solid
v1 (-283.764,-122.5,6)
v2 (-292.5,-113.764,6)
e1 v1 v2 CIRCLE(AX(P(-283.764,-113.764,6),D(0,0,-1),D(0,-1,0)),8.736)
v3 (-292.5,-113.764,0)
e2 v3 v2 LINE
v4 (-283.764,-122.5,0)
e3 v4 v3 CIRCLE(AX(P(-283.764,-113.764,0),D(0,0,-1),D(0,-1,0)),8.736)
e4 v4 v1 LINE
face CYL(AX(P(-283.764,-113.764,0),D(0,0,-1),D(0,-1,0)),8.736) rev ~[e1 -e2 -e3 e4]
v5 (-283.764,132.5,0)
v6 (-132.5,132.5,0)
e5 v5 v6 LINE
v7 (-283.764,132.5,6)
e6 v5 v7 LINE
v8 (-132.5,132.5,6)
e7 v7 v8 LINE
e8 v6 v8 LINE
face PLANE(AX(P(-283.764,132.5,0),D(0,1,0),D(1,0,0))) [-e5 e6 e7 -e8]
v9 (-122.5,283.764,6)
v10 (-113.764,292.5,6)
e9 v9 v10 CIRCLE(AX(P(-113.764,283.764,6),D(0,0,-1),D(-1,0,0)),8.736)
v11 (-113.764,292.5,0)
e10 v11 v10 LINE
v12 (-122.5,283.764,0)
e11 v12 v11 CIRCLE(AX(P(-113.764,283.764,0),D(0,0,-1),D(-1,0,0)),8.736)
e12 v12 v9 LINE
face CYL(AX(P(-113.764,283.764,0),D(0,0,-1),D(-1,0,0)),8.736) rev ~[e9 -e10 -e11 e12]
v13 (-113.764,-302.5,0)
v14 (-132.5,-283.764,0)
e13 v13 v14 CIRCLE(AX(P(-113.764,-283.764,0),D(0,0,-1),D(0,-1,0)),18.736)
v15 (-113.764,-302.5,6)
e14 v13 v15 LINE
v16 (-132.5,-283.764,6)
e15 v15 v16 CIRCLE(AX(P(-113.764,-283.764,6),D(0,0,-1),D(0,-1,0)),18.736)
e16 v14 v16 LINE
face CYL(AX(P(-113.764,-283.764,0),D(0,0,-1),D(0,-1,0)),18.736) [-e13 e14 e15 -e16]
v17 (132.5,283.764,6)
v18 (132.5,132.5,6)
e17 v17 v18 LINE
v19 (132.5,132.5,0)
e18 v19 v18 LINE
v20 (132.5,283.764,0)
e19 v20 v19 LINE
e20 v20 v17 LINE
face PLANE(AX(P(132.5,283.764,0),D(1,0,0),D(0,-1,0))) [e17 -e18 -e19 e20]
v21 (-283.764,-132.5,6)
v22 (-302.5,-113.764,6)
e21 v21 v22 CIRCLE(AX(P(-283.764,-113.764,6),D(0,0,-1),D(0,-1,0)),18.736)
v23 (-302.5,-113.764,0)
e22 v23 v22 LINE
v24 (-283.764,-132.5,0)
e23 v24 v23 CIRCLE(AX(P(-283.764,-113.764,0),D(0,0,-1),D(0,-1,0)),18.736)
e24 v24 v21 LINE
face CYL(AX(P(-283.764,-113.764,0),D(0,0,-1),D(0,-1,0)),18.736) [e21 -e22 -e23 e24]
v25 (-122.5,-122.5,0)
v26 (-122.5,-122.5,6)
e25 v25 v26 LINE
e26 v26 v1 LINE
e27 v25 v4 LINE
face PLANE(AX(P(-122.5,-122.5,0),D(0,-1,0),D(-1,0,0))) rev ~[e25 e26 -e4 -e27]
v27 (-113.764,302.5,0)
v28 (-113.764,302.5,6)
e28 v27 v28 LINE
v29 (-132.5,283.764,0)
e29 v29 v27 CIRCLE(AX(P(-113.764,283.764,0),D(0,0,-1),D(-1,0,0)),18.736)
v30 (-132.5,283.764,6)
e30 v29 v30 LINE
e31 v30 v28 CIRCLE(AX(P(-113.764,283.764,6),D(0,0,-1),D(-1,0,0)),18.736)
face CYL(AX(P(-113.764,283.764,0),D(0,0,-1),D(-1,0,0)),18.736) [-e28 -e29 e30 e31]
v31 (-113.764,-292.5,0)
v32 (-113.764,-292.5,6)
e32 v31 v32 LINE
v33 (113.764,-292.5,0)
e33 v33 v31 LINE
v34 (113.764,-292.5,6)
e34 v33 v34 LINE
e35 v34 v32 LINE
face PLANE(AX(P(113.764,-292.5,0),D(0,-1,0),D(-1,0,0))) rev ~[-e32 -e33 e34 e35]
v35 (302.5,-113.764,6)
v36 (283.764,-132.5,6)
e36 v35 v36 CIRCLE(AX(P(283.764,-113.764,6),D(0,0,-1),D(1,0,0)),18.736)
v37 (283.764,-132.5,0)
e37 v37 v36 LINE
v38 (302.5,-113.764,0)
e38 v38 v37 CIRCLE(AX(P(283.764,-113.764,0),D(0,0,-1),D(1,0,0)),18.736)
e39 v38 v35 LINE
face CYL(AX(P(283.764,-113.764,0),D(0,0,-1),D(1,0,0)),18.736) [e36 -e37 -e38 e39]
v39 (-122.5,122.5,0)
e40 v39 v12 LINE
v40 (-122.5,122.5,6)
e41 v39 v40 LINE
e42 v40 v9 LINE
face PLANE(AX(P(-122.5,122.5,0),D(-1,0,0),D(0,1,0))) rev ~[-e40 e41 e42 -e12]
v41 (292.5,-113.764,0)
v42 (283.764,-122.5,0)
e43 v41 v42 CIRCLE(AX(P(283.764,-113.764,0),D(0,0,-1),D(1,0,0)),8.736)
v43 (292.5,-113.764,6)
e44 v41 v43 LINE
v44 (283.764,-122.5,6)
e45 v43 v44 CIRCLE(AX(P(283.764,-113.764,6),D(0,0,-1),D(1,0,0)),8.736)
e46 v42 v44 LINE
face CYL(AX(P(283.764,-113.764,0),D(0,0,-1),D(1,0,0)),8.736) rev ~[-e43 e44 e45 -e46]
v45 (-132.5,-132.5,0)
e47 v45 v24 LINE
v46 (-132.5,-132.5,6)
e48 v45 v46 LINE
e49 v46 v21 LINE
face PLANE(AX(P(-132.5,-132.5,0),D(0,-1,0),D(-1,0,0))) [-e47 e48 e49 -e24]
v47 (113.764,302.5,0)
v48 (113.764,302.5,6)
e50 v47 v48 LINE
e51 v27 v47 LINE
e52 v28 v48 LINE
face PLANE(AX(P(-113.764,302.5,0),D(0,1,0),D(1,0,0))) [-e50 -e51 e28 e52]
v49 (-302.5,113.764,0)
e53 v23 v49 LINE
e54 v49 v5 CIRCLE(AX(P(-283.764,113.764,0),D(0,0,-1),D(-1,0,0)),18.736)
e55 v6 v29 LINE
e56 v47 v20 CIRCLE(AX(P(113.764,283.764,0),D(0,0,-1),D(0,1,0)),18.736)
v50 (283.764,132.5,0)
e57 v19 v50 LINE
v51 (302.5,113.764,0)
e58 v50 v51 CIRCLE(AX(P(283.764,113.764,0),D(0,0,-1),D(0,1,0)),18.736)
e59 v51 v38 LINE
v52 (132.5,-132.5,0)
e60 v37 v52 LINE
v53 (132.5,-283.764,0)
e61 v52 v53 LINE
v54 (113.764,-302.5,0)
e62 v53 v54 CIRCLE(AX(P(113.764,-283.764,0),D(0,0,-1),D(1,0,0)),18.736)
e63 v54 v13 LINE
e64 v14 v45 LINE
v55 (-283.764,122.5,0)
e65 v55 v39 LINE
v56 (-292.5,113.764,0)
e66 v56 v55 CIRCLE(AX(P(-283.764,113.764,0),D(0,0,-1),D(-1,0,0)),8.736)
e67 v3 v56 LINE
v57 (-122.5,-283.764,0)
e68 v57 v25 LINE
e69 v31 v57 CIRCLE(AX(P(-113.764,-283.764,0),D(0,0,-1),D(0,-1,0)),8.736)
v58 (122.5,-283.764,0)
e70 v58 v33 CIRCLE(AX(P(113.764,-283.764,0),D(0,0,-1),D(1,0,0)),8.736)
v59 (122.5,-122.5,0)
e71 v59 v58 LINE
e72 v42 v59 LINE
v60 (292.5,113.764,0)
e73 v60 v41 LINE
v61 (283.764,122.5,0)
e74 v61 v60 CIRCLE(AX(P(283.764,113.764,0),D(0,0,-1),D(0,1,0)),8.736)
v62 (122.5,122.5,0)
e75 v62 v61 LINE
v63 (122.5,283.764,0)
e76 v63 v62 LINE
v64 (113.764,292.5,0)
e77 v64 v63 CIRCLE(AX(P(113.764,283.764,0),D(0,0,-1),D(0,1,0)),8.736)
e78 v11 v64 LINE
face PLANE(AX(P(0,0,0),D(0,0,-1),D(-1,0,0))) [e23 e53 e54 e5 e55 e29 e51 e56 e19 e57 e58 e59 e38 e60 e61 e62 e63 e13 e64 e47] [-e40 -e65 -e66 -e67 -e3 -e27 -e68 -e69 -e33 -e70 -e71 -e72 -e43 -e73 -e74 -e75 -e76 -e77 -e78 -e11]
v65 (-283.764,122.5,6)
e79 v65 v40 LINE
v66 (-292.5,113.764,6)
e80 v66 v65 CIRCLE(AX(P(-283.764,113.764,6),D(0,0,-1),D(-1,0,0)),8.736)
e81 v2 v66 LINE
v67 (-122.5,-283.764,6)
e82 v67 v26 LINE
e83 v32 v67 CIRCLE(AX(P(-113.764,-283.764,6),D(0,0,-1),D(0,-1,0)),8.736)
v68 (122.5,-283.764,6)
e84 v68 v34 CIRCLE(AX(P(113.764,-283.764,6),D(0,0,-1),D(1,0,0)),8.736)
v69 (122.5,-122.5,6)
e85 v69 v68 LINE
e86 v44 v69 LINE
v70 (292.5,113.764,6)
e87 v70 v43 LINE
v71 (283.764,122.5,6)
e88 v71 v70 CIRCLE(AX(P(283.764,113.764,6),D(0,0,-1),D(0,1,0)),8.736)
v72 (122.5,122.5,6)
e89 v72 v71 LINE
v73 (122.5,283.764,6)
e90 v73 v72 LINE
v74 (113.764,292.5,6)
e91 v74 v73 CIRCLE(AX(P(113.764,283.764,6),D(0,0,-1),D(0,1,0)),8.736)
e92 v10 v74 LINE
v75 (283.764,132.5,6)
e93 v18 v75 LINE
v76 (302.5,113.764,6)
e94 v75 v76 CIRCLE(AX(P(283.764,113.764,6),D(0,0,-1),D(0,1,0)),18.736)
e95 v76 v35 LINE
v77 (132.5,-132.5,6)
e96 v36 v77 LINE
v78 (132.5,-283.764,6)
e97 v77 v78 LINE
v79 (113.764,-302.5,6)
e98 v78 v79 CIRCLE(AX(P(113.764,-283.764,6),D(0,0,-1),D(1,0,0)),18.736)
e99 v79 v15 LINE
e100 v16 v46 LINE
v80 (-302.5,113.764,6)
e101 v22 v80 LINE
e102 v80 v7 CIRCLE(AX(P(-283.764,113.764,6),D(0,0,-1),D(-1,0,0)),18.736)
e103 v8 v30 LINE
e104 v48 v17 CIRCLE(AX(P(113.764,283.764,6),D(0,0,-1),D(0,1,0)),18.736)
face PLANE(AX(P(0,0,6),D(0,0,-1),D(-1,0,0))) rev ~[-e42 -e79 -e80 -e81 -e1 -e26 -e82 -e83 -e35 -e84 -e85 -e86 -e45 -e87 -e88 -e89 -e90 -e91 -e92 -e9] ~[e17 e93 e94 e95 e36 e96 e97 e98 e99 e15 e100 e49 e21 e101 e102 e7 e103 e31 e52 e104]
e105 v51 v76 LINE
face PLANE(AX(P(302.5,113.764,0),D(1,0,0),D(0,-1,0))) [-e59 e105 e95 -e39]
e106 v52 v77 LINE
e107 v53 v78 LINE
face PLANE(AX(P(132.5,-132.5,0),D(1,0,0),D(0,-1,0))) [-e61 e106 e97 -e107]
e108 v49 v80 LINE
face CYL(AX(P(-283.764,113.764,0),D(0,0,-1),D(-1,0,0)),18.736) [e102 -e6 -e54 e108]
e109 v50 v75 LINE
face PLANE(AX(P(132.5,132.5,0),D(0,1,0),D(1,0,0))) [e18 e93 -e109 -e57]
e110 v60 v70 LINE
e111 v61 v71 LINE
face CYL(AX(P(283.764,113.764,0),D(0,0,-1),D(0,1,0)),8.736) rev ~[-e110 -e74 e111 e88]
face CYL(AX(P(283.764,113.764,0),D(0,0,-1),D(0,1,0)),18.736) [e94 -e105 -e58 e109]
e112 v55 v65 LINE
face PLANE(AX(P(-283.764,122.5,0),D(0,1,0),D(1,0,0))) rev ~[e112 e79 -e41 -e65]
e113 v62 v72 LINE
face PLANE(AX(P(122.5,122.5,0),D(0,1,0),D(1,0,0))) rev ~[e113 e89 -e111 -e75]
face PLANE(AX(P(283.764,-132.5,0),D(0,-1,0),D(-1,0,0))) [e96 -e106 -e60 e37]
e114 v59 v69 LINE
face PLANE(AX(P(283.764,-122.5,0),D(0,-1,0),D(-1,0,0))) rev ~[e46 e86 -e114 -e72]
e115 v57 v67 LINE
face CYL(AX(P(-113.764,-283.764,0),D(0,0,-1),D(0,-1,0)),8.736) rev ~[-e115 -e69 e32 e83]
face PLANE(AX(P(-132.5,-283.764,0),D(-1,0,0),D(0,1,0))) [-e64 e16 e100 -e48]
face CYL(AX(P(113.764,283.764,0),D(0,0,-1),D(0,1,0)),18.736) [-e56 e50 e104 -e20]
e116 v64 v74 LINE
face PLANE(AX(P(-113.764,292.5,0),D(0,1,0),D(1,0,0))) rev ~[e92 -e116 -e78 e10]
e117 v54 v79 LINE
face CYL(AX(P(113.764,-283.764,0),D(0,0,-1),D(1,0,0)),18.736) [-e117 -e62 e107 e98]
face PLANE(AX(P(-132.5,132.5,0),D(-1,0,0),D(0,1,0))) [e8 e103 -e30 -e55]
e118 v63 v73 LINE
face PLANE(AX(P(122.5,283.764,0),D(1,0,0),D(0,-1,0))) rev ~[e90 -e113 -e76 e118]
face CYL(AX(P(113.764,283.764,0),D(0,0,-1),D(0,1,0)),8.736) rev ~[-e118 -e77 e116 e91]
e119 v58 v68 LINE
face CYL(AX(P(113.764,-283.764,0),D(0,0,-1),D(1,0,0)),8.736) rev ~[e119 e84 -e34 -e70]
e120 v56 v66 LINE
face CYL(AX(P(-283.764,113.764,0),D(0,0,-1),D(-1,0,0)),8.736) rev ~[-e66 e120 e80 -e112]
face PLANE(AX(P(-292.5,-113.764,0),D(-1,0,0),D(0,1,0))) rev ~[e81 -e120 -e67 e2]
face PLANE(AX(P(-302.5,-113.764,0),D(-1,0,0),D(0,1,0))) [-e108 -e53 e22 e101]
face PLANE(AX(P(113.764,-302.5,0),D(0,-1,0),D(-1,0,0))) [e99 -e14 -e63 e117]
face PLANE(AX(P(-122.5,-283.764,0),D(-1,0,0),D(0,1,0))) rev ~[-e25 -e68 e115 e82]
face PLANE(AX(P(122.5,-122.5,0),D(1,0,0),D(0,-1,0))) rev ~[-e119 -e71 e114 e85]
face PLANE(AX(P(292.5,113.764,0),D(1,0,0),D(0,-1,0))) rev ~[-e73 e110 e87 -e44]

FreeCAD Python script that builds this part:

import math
import FreeCAD as App
import Part
import Sketcher
Q = App.Units.Quantity

doc = App.newDocument("Part")
body = doc.addObject("PartDesign::Body", "Body")

sketch1 = body.newObject("Sketcher::SketchObject", "Sketch")
sketch1.AttachmentSupport = (doc.getObject("XY_Plane"), [""])
sketch1.MapMode = "FlatFace"
sketch1.addGeometry([
    Part.LineSegment(App.Vector(-132.5, 132.5, 0), App.Vector(-283.764, 132.5, 0)),
    Part.ArcOfCircle(Part.Circle(App.Vector(-283.764, 113.764, 0), App.Vector(0, 0, 1), 18.736), math.radians(90), math.radians(180)),
    Part.LineSegment(App.Vector(-302.5, 113.764, 0), App.Vector(-302.5, -113.764, 0)),
    Part.ArcOfCircle(Part.Circle(App.Vector(-283.764, -113.764, 0), App.Vector(0, 0, 1), 18.736), math.radians(-180), math.radians(-90)),
    Part.LineSegment(App.Vector(-283.764, -132.5, 0), App.Vector(-132.5, -132.5, 0)),
    Part.LineSegment(App.Vector(-132.5, -132.5, 0), App.Vector(-132.5, -283.764, 0)),
    Part.ArcOfCircle(Part.Circle(App.Vector(-113.764, -283.764, 0), App.Vector(0, 0, 1), 18.736), math.radians(-180), math.radians(-90)),
    Part.LineSegment(App.Vector(-113.764, -302.5, 0), App.Vector(113.764, -302.5, 0)),
    Part.ArcOfCircle(Part.Circle(App.Vector(113.764, -283.764, 0), App.Vector(0, 0, 1), 18.736), math.radians(-90), math.radians(0)),
    Part.LineSegment(App.Vector(132.5, -283.764, 0), App.Vector(132.5, -132.5, 0)),
    Part.LineSegment(App.Vector(132.5, -132.5, 0), App.Vector(283.764, -132.5, 0)),
    Part.ArcOfCircle(Part.Circle(App.Vector(283.764, -113.764, 0), App.Vector(0, 0, 1), 18.736), math.radians(-90), math.radians(0)),
    Part.LineSegment(App.Vector(302.5, -113.764, 0), App.Vector(302.5, 113.764, 0)),
    Part.ArcOfCircle(Part.Circle(App.Vector(283.764, 113.764, 0), App.Vector(0, 0, 1), 18.736), math.radians(0), math.radians(90)),
    Part.LineSegment(App.Vector(283.764, 132.5, 0), App.Vector(132.5, 132.5, 0)),
    Part.LineSegment(App.Vector(132.5, 132.5, 0), App.Vector(132.5, 283.764, 0)),
    Part.ArcOfCircle(Part.Circle(App.Vector(113.764, 283.764, 0), App.Vector(0, 0, 1), 18.736), math.radians(0), math.radians(90)),
    Part.LineSegment(App.Vector(113.764, 302.5, 0), App.Vector(-113.764, 302.5, 0)),
    Part.ArcOfCircle(Part.Circle(App.Vector(-113.764, 283.764, 0), App.Vector(0, 0, 1), 18.736), math.radians(90), math.radians(180)),
    Part.LineSegment(App.Vector(-132.5, 283.764, 0), App.Vector(-132.5, 132.5, 0)),
    Part.LineSegment(App.Vector(-283.764, 122.5, 0), App.Vector(-122.5, 122.5, 0)),
    Part.LineSegment(App.Vector(-122.5, 122.5, 0), App.Vector(-122.5, 283.764, 0)),
    Part.ArcOfCircle(Part.Circle(App.Vector(-113.764, 283.764, 0), App.Vector(0, 0, 1), 8.736), math.radians(90), math.radians(180)),
    Part.LineSegment(App.Vector(-113.764, 292.5, 0), App.Vector(113.764, 292.5, 0)),
    Part.ArcOfCircle(Part.Circle(App.Vector(113.764, 283.764, 0), App.Vector(0, 0, 1), 8.736), math.radians(0), math.radians(90)),
    Part.LineSegment(App.Vector(122.5, 283.764, 0), App.Vector(122.5, 122.5, 0)),
    Part.LineSegment(App.Vector(122.5, 122.5, 0), App.Vector(283.764, 122.5, 0)),
    Part.ArcOfCircle(Part.Circle(App.Vector(283.764, 113.764, 0), App.Vector(0, 0, 1), 8.736), math.radians(0), math.radians(90)),
    Part.LineSegment(App.Vector(292.5, 113.764, 0), App.Vector(292.5, -113.764, 0)),
    Part.ArcOfCircle(Part.Circle(App.Vector(283.764, -113.764, 0), App.Vector(0, 0, 1), 8.736), math.radians(-90), math.radians(0)),
    Part.LineSegment(App.Vector(283.764, -122.5, 0), App.Vector(122.5, -122.5, 0)),
    Part.LineSegment(App.Vector(122.5, -122.5, 0), App.Vector(122.5, -283.764, 0)),
    Part.ArcOfCircle(Part.Circle(App.Vector(113.764, -283.764, 0), App.Vector(0, 0, 1), 8.736), math.radians(-90), math.radians(0)),
    Part.LineSegment(App.Vector(113.764, -292.5, 0), App.Vector(-113.764, -292.5, 0)),
    Part.ArcOfCircle(Part.Circle(App.Vector(-113.764, -283.764, 0), App.Vector(0, 0, 1), 8.736), math.radians(-180), math.radians(-90)),
    Part.LineSegment(App.Vector(-122.5, -283.764, 0), App.Vector(-122.5, -122.5, 0)),
    Part.LineSegment(App.Vector(-122.5, -122.5, 0), App.Vector(-283.764, -122.5, 0)),
    Part.ArcOfCircle(Part.Circle(App.Vector(-283.764, -113.764, 0), App.Vector(0, 0, 1), 8.736), math.radians(-180), math.radians(-90)),
    Part.LineSegment(App.Vector(-292.5, -113.764, 0), App.Vector(-292.5, 113.764, 0)),
    Part.ArcOfCircle(Part.Circle(App.Vector(-283.764, 113.764, 0), App.Vector(0, 0, 1), 8.736), math.radians(90), math.radians(180)),
], False)
sketch1.addConstraint([
    Sketcher.Constraint("Tangent", 0, 2, 1, 1),
    Sketcher.Constraint("Tangent", 1, 2, 2, 1),
    Sketcher.Constraint("Tangent", 2, 2, 3, 1),
    Sketcher.Constraint("Tangent", 3, 2, 4, 1),
    Sketcher.Constraint("Coincident", 4, 2, 5, 1),
    Sketcher.Constraint("Tangent", 5, 2, 6, 1),
    Sketcher.Constraint("Tangent", 6, 2, 7, 1),
    Sketcher.Constraint("Tangent", 7, 2, 8, 1),
    Sketcher.Constraint("Tangent", 8, 2, 9, 1),
    Sketcher.Constraint("Coincident", 9, 2, 10, 1),
    Sketcher.Constraint("Tangent", 10, 2, 11, 1),
    Sketcher.Constraint("Tangent", 11, 2, 12, 1),
    Sketcher.Constraint("Tangent", 12, 2, 13, 1),
    Sketcher.Constraint("Tangent", 13, 2, 14, 1),
    Sketcher.Constraint("Coincident", 14, 2, 15, 1),
    Sketcher.Constraint("Tangent", 15, 2, 16, 1),
    Sketcher.Constraint("Tangent", 16, 2, 17, 1),
    Sketcher.Constraint("Tangent", 17, 2, 18, 1),
    Sketcher.Constraint("Tangent", 18, 2, 19, 1),
    Sketcher.Constraint("Coincident", 19, 2, 0, 1),
    Sketcher.Constraint("Coincident", 20, 2, 21, 1),
    Sketcher.Constraint("Tangent", 21, 2, 22, 2),
    Sketcher.Constraint("Tangent", 22, 1, 23, 1),
    Sketcher.Constraint("Tangent", 23, 2, 24, 2),
    Sketcher.Constraint("Tangent", 24, 1, 25, 1),
    Sketcher.Constraint("Coincident", 25, 2, 26, 1),
    Sketcher.Constraint("Tangent", 26, 2, 27, 2),
    Sketcher.Constraint("Tangent", 27, 1, 28, 1),
    Sketcher.Constraint("Tangent", 28, 2, 29, 2),
    Sketcher.Constraint("Tangent", 29, 1, 30, 1),
    Sketcher.Constraint("Coincident", 30, 2, 31, 1),
    Sketcher.Constraint("Tangent", 31, 2, 32, 2),
    Sketcher.Constraint("Tangent", 32, 1, 33, 1),
    Sketcher.Constraint("Tangent", 33, 2, 34, 2),
    Sketcher.Constraint("Tangent", 34, 1, 35, 1),
    Sketcher.Constraint("Coincident", 35, 2, 36, 1),
    Sketcher.Constraint("Tangent", 36, 2, 37, 2),
    Sketcher.Constraint("Tangent", 37, 1, 38, 1),
    Sketcher.Constraint("Tangent", 38, 2, 39, 2),
    Sketcher.Constraint("Tangent", 39, 1, 20, 1),
    Sketcher.Constraint("Horizontal", 0),
    Sketcher.Constraint("Vertical", 2),
    Sketcher.Constraint("Horizontal", 4),
    Sketcher.Constraint("Vertical", 5),
    Sketcher.Constraint("Horizontal", 7),
    Sketcher.Constraint("Vertical", 9),
    Sketcher.Constraint("Horizontal", 10),
    Sketcher.Constraint("Vertical", 12),
    Sketcher.Constraint("Horizontal", 14),
    Sketcher.Constraint("Vertical", 15),
    Sketcher.Constraint("Horizontal", 17),
    Sketcher.Constraint("Vertical", 19),
    Sketcher.Constraint("Horizontal", 20),
    Sketcher.Constraint("Vertical", 21),
    Sketcher.Constraint("Horizontal", 23),
    Sketcher.Constraint("Vertical", 25),
    Sketcher.Constraint("Horizontal", 26),
    Sketcher.Constraint("Vertical", 28),
    Sketcher.Constraint("Horizontal", 30),
    Sketcher.Constraint("Vertical", 31),
    Sketcher.Constraint("Horizontal", 33),
    Sketcher.Constraint("Vertical", 35),
    Sketcher.Constraint("Horizontal", 36),
    Sketcher.Constraint("Vertical", 38),
    Sketcher.Constraint("Coincident", 22, 3, 18, 3),
    Sketcher.Constraint("Coincident", 24, 3, 16, 3),
    Sketcher.Constraint("Coincident", 27, 3, 13, 3),
    Sketcher.Constraint("Coincident", 29, 3, 11, 3),
    Sketcher.Constraint("Coincident", 32, 3, 8, 3),
    Sketcher.Constraint("Coincident", 34, 3, 6, 3),
    Sketcher.Constraint("Coincident", 37, 3, 3, 3),
    Sketcher.Constraint("Coincident", 39, 3, 1, 3),
    Sketcher.Constraint("Equal", 1, 3),
    Sketcher.Constraint("Equal", 3, 6),
    Sketcher.Constraint("Equal", 6, 8),
    Sketcher.Constraint("Equal", 8, 11),
    Sketcher.Constraint("Equal", 11, 13),
    Sketcher.Constraint("Equal", 13, 16),
    Sketcher.Constraint("Equal", 16, 18),
    Sketcher.Constraint("Equal", 24, 27),
    Sketcher.Constraint("Equal", 29, 32),
    Sketcher.Constraint("Equal", 34, 37),
    Sketcher.Constraint("Symmetric", 1, 3, 11, 3, -1, 1),
    Sketcher.Constraint("Symmetric", 6, 3, 16, 3, -1, 1),
    Sketcher.Constraint("Symmetric", 4, 2, 9, 2, -2),
    Sketcher.Constraint("Symmetric", 14, 2, 19, 2, -2),
    Sketcher.Constraint("Equal", 33, 2),
    Sketcher.Constraint("Equal", 14, 5),
    Sketcher.Constraint("Radius", 1, Q("18.736 mm")),
    Sketcher.Constraint("Radius", 22, Q("8.736 mm")),
    Sketcher.Constraint("DistanceX", 3, 3, 6, 3, Q("170 mm")),
    Sketcher.Constraint("DistanceY", -1, 1, 0, 2, Q("132.5 mm")),
])
pad1 = body.newObject("PartDesign::Pad", "Pad")
pad1.Profile = sketch1
pad1.Length = 6

doc.recompute()
